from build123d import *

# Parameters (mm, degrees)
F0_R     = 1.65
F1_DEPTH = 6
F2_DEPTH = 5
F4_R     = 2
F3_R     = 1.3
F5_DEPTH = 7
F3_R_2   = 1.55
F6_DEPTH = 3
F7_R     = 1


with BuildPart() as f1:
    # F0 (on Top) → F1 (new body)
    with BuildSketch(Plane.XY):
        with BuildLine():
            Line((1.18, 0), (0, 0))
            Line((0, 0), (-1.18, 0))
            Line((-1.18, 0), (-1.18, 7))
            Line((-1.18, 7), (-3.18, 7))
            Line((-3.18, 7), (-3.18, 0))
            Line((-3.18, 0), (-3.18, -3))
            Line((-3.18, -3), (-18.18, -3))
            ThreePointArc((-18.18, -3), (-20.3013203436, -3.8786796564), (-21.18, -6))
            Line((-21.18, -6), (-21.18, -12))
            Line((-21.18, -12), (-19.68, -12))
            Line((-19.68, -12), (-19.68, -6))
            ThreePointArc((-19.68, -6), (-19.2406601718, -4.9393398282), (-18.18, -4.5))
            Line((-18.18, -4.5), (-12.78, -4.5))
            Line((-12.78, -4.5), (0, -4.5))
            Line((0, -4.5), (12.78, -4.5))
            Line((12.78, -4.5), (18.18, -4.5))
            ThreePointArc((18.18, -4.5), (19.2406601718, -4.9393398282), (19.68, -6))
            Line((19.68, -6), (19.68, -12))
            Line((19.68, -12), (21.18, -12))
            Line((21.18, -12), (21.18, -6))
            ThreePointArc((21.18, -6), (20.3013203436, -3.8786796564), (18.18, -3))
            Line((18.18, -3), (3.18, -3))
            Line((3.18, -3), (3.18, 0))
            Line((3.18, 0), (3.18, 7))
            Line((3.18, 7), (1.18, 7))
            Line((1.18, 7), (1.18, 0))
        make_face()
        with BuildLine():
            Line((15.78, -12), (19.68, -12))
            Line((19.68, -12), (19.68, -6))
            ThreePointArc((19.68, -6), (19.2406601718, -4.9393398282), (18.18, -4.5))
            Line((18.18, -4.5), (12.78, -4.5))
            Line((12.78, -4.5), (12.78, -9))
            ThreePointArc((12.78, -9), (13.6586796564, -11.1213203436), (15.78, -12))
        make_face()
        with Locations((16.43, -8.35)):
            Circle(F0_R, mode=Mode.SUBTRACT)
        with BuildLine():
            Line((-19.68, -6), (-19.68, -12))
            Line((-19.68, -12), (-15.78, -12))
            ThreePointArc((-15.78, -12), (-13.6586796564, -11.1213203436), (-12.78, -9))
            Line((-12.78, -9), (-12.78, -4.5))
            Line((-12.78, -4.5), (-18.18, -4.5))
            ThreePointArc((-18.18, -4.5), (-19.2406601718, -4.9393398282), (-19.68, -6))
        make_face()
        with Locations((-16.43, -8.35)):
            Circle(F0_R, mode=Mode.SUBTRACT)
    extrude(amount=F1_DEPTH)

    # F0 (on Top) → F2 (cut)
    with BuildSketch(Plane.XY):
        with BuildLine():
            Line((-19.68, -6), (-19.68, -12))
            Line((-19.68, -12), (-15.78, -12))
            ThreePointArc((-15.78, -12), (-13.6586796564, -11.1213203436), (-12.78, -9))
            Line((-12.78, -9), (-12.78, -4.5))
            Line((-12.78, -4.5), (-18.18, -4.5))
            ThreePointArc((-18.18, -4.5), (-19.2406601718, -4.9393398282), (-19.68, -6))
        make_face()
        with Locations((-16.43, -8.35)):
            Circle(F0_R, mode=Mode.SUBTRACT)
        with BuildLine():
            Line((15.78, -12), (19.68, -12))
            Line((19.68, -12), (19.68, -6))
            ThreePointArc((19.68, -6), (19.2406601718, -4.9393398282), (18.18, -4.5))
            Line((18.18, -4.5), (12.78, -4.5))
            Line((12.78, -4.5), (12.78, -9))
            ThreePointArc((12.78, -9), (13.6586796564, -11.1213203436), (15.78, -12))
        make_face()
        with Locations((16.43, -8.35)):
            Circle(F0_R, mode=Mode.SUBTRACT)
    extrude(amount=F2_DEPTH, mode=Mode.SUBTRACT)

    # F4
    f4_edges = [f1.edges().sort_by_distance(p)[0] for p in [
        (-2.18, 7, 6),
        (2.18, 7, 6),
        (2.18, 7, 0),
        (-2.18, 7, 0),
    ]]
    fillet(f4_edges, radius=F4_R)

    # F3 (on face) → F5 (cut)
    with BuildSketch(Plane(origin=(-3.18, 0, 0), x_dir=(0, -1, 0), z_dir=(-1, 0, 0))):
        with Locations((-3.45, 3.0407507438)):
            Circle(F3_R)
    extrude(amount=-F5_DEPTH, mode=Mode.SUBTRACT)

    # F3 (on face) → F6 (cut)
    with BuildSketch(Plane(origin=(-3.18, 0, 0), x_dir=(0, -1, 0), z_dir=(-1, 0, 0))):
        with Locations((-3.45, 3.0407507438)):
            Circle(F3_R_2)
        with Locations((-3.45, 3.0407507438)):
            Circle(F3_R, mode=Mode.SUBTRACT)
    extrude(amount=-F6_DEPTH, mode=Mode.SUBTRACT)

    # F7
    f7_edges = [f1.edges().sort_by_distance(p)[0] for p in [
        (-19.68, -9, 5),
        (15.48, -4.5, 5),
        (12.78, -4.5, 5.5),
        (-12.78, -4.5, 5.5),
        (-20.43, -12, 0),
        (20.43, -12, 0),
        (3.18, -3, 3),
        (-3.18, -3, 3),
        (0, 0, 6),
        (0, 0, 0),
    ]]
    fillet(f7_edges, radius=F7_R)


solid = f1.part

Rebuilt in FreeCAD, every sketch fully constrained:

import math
import FreeCAD as App
import Part
import Sketcher

V = App.Vector


def edges_at(feature, points):
    """Names of the edges that pass closest to the given points."""
    edges = feature.Shape.Edges
    near = lambda p: min(range(len(edges)), key=lambda i: edges[i].distToShape(Part.Vertex(*p))[0])
    return sorted({f"Edge{near(p) + 1}" for p in points})

doc = App.newDocument("Part")
body = doc.addObject("PartDesign::Body", "Body")

# Sketch on XY plane
sketch1 = body.newObject("Sketcher::SketchObject", "Sketch")
sketch1.AttachmentSupport = (doc.getObject("XY_Plane"), [""])
sketch1.MapMode = "FlatFace"
sketch1.addGeometry([
    Part.LineSegment(V(1.18, 0, 0), V(-1.18, 0, 0)),  # 0
    Part.LineSegment(V(-1.18, 0, 0), V(-1.18, 7, 0)),  # 1
    Part.LineSegment(V(-1.18, 7, 0), V(-3.18, 7, 0)),  # 2
    Part.LineSegment(V(-3.18, 7, 0), V(-3.18, -3, 0)),  # 3
    Part.LineSegment(V(-3.18, -3, 0), V(-18.18, -3, 0)),  # 4
    Part.ArcOfCircle(Part.Circle(V(-18.18, -6, 0), V(0, 0, 1), 3), math.radians(90), math.radians(180)),  # 5
    Part.LineSegment(V(-21.18, -6, 0), V(-21.18, -12, 0)),  # 6
    Part.LineSegment(V(-21.18, -12, 0), V(-15.78, -12, 0)),  # 7
    Part.ArcOfCircle(Part.Circle(V(-15.78, -9, 0), V(0, 0, 1), 3), math.radians(-90), math.radians(0)),  # 8
    Part.LineSegment(V(-12.78, -9, 0), V(-12.78, -4.5, 0)),  # 9
    Part.LineSegment(V(-12.78, -4.5, 0), V(12.78, -4.5, 0)),  # 10
    Part.LineSegment(V(12.78, -4.5, 0), V(12.78, -9, 0)),  # 11
    Part.ArcOfCircle(Part.Circle(V(15.78, -9, 0), V(0, 0, 1), 3), math.radians(180), math.radians(270)),  # 12
    Part.LineSegment(V(15.78, -12, 0), V(21.18, -12, 0)),  # 13
    Part.LineSegment(V(21.18, -12, 0), V(21.18, -6, 0)),  # 14
    Part.ArcOfCircle(Part.Circle(V(18.18, -6, 0), V(0, 0, 1), 3), math.radians(0), math.radians(90)),  # 15
    Part.LineSegment(V(18.18, -3, 0), V(3.18, -3, 0)),  # 16
    Part.LineSegment(V(3.18, -3, 0), V(3.18, 7, 0)),  # 17
    Part.LineSegment(V(3.18, 7, 0), V(1.18, 7, 0)),  # 18
    Part.LineSegment(V(1.18, 7, 0), V(1.18, 0, 0)),  # 19
    Part.Circle(V(-16.43, -8.35, 0), V(0, 0, 1), 1.65),  # 20
    Part.Circle(V(16.43, -8.35, 0), V(0, 0, 1), 1.65),  # 21
], False)
sketch1.addConstraint([
    Sketcher.Constraint("Coincident", 0, 2, 1, 1),
    Sketcher.Constraint("Coincident", 1, 2, 2, 1),
    Sketcher.Constraint("Coincident", 2, 2, 3, 1),
    Sketcher.Constraint("Coincident", 3, 2, 4, 1),
    Sketcher.Constraint("Tangent", 4, 2, 5, 1),
    Sketcher.Constraint("Tangent", 5, 2, 6, 1),
    Sketcher.Constraint("Coincident", 6, 2, 7, 1),
    Sketcher.Constraint("Tangent", 7, 2, 8, 1),
    Sketcher.Constraint("Tangent", 8, 2, 9, 1),
    Sketcher.Constraint("Coincident", 9, 2, 10, 1),
    Sketcher.Constraint("Coincident", 10, 2, 11, 1),
    Sketcher.Constraint("Tangent", 11, 2, 12, 1),
    Sketcher.Constraint("Tangent", 12, 2, 13, 1),
    Sketcher.Constraint("Coincident", 13, 2, 14, 1),
    Sketcher.Constraint("Tangent", 14, 2, 15, 1),
    Sketcher.Constraint("Tangent", 15, 2, 16, 1),
    Sketcher.Constraint("Coincident", 16, 2, 17, 1),
    Sketcher.Constraint("Coincident", 17, 2, 18, 1),
    Sketcher.Constraint("Coincident", 18, 2, 19, 1),
    Sketcher.Constraint("Coincident", 19, 2, 0, 1),
    Sketcher.Constraint("Horizontal", 0),
    Sketcher.Constraint("Vertical", 1),
    Sketcher.Constraint("Horizontal", 2),
    Sketcher.Constraint("Vertical", 3),
    Sketcher.Constraint("Horizontal", 4),
    Sketcher.Constraint("Vertical", 6),
    Sketcher.Constraint("Horizontal", 7),
    Sketcher.Constraint("Vertical", 9),
    Sketcher.Constraint("Horizontal", 10),
    Sketcher.Constraint("Vertical", 11),
    Sketcher.Constraint("Horizontal", 13),
    Sketcher.Constraint("Vertical", 14),
    Sketcher.Constraint("Horizontal", 16),
    Sketcher.Constraint("Vertical", 17),
    Sketcher.Constraint("Horizontal", 18),
    Sketcher.Constraint("Vertical", 19),
    Sketcher.Constraint("Equal", 5, 8),
    Sketcher.Constraint("Equal", 8, 12),
    Sketcher.Constraint("Equal", 12, 15),
    Sketcher.Constraint("Equal", 20, 21),
    Sketcher.Constraint("Symmetric", 0, 2, 19, 2, -1, 1),
    Sketcher.Constraint("Symmetric", 8, 3, 12, 3, -2),
    Sketcher.Constraint("Symmetric", 5, 3, 15, 3, -2),
    Sketcher.Constraint("Symmetric", 20, 3, 21, 3, -2),
    Sketcher.Constraint("Symmetric", 2, 2, 17, 2, -2),
    Sketcher.Constraint("Radius", 5, 3.0),
    Sketcher.Constraint("Diameter", 20, 3.3),
    Sketcher.Constraint("DistanceX", 2, 2, 2, 1, 2.0),
    Sketcher.Constraint("DistanceX", 4, 2, 4, 1, 15.0),
    Sketcher.Constraint("DistanceY", 1, 1, 1, 2, 7.0),
    Sketcher.Constraint("DistanceY", 3, 2, 3, 1, 10.0),
    Sketcher.Constraint("DistanceY", 6, 2, 6, 1, 6.0),
    Sketcher.Constraint("DistanceX", 7, 1, 7, 2, 5.4),
    Sketcher.Constraint("DistanceY", 9, 1, 9, 2, 4.5),
    Sketcher.Constraint("DistanceX", 0, 2, 0, 1, 2.36),
    Sketcher.Constraint("DistanceX", 20, 3, -1, 1, 16.43),
    Sketcher.Constraint("DistanceY", 20, 3, -1, 1, 8.35),
])
pad1 = body.newObject("PartDesign::Pad", "Pad")
pad1.Profile = sketch1
pad1.Length = 6

# Sketch on XY plane
sketch2 = body.newObject("Sketcher::SketchObject", "Sketch001")
sketch2.AttachmentSupport = (doc.getObject("XY_Plane"), [""])
sketch2.MapMode = "FlatFace"
sketch2.addGeometry([
    Part.LineSegment(V(-19.68, -6, 0), V(-19.68, -12, 0)),  # 0
    Part.LineSegment(V(-19.68, -12, 0), V(-15.78, -12, 0)),  # 1
    Part.ArcOfCircle(Part.Circle(V(-15.78, -9, 0), V(0, 0, 1), 3), math.radians(-90), math.radians(0)),  # 2
    Part.LineSegment(V(-12.78, -9, 0), V(-12.78, -4.5, 0)),  # 3
    Part.LineSegment(V(-12.78, -4.5, 0), V(-18.18, -4.5, 0)),  # 4
    Part.ArcOfCircle(Part.Circle(V(-18.18, -6, 0), V(0, 0, 1), 1.5), math.radians(90), math.radians(180)),  # 5
    Part.Circle(V(-16.43, -8.35, 0), V(0, 0, 1), 1.65),  # 6
    Part.LineSegment(V(15.78, -12, 0), V(19.68, -12, 0)),  # 7
    Part.LineSegment(V(19.68, -12, 0), V(19.68, -6, 0)),  # 8
    Part.ArcOfCircle(Part.Circle(V(18.18, -6, 0), V(0, 0, 1), 1.5), math.radians(0), math.radians(90)),  # 9
    Part.LineSegment(V(18.18, -4.5, 0), V(12.78, -4.5, 0)),  # 10
    Part.LineSegment(V(12.78, -4.5, 0), V(12.78, -9, 0)),  # 11
    Part.ArcOfCircle(Part.Circle(V(15.78, -9, 0), V(0, 0, 1), 3), math.radians(180), math.radians(270)),  # 12
    Part.Circle(V(16.43, -8.35, 0), V(0, 0, 1), 1.65),  # 13
], False)
sketch2.addConstraint([
    Sketcher.Constraint("Coincident", 0, 2, 1, 1),
    Sketcher.Constraint("Tangent", 1, 2, 2, 1),
    Sketcher.Constraint("Tangent", 2, 2, 3, 1),
    Sketcher.Constraint("Coincident", 3, 2, 4, 1),
    Sketcher.Constraint("Tangent", 4, 2, 5, 1),
    Sketcher.Constraint("Tangent", 5, 2, 0, 1),
    Sketcher.Constraint("Coincident", 7, 2, 8, 1),
    Sketcher.Constraint("Tangent", 8, 2, 9, 1),
    Sketcher.Constraint("Tangent", 9, 2, 10, 1),
    Sketcher.Constraint("Coincident", 10, 2, 11, 1),
    Sketcher.Constraint("Tangent", 11, 2, 12, 1),
    Sketcher.Constraint("Tangent", 12, 2, 7, 1),
    Sketcher.Constraint("Vertical", 0),
    Sketcher.Constraint("Horizontal", 1),
    Sketcher.Constraint("Vertical", 3),
    Sketcher.Constraint("Horizontal", 4),
    Sketcher.Constraint("Horizontal", 7),
    Sketcher.Constraint("Vertical", 8),
    Sketcher.Constraint("Horizontal", 10),
    Sketcher.Constraint("Vertical", 11),
    Sketcher.Constraint("Equal", 5, 9),
    Sketcher.Constraint("Equal", 2, 12),
    Sketcher.Constraint("Equal", 6, 13),
    Sketcher.Constraint("Symmetric", 5, 3, 9, 3, -2),
    Sketcher.Constraint("Symmetric", 2, 3, 12, 3, -2),
    Sketcher.Constraint("Symmetric", 6, 3, 13, 3, -2),
    Sketcher.Constraint("Radius", 2, 3.0),
    Sketcher.Constraint("Diameter", 6, 3.3),
    Sketcher.Constraint("Radius", 5, 1.5),
    Sketcher.Constraint("DistanceY", 0, 2, 0, 1, 6.0),
    Sketcher.Constraint("DistanceX", 1, 1, 1, 2, 3.9),
    Sketcher.Constraint("DistanceY", 2, 3, -1, 1, 9.0),
    Sketcher.Constraint("DistanceX", 2, 3, -1, 1, 15.78),
    Sketcher.Constraint("DistanceX", 6, 3, -1, 1, 16.43),
    Sketcher.Constraint("DistanceY", 6, 3, -1, 1, 8.35),
])
pocket1 = body.newObject("PartDesign::Pocket", "Pocket")
pocket1.Profile = sketch2
pocket1.Length = 5
pocket1.Reversed = True
doc.recompute()

fillet = body.newObject("PartDesign::Fillet", "Fillet")
fillet.Base = (pocket1, edges_at(pocket1, [
    (-2.18, 7, 6),
    (2.18, 7, 6),
    (2.18, 7, 0),
    (-2.18, 7, 0),
]))
fillet.Radius = 2

# Sketch on YZ plane
sketch3 = body.newObject("Sketcher::SketchObject", "Sketch002")
sketch3.AttachmentSupport = (doc.getObject("YZ_Plane"), [""])
sketch3.MapMode = "FlatFace"
sketch3.AttachmentOffset = App.Placement(V(0, 0, -3.18), App.Rotation())
sketch3.addGeometry(Part.Circle(V(3.45, 3.040751, 0), V(0, 0, 1), 1.3), False)
sketch3.addConstraint([
    Sketcher.Constraint("Diameter", 0, 2.6),
    Sketcher.Constraint("DistanceX", -1, 1, 0, 3, 3.45),
    Sketcher.Constraint("DistanceY", -1, 1, 0, 3, 3.040751),
])
pocket2 = body.newObject("PartDesign::Pocket", "Pocket001")
pocket2.Profile = sketch3
pocket2.Length = 7
pocket2.Reversed = True

# Sketch on YZ plane
sketch4 = body.newObject("Sketcher::SketchObject", "Sketch003")
sketch4.AttachmentSupport = (doc.getObject("YZ_Plane"), [""])
sketch4.MapMode = "FlatFace"
sketch4.AttachmentOffset = App.Placement(V(0, 0, -3.18), App.Rotation())
sketch4.addGeometry([
    Part.Circle(V(3.45, 3.040751, 0), V(0, 0, 1), 1.55),
    Part.Circle(V(3.45, 3.040751, 0), V(0, 0, 1), 1.3),
], False)
sketch4.addConstraint([
    Sketcher.Constraint("Coincident", 1, 3, 0, 3),
    Sketcher.Constraint("Diameter", 0, 3.1),
    Sketcher.Constraint("Diameter", 1, 2.6),
    Sketcher.Constraint("DistanceX", -1, 1, 0, 3, 3.45),
    Sketcher.Constraint("DistanceY", -1, 1, 0, 3, 3.040751),
])
pocket3 = body.newObject("PartDesign::Pocket", "Pocket002")
pocket3.Profile = sketch4
pocket3.Length = 3
pocket3.Reversed = True
doc.recompute()

fillet2 = body.newObject("PartDesign::Fillet", "Fillet001")
fillet2.Base = (pocket3, edges_at(pocket3, [
    (-19.68, -9, 5),
    (15.48, -4.5, 5),
    (12.78, -4.5, 5.5),
    (-12.78, -4.5, 5.5),
    (-20.43, -12, 0),
    (20.43, -12, 0),
    (3.18, -3, 3),
    (-3.18, -3, 3),
    (0, 0, 6),
    (0, 0, 0),
]))
fillet2.Radius = 1

doc.recompute()
